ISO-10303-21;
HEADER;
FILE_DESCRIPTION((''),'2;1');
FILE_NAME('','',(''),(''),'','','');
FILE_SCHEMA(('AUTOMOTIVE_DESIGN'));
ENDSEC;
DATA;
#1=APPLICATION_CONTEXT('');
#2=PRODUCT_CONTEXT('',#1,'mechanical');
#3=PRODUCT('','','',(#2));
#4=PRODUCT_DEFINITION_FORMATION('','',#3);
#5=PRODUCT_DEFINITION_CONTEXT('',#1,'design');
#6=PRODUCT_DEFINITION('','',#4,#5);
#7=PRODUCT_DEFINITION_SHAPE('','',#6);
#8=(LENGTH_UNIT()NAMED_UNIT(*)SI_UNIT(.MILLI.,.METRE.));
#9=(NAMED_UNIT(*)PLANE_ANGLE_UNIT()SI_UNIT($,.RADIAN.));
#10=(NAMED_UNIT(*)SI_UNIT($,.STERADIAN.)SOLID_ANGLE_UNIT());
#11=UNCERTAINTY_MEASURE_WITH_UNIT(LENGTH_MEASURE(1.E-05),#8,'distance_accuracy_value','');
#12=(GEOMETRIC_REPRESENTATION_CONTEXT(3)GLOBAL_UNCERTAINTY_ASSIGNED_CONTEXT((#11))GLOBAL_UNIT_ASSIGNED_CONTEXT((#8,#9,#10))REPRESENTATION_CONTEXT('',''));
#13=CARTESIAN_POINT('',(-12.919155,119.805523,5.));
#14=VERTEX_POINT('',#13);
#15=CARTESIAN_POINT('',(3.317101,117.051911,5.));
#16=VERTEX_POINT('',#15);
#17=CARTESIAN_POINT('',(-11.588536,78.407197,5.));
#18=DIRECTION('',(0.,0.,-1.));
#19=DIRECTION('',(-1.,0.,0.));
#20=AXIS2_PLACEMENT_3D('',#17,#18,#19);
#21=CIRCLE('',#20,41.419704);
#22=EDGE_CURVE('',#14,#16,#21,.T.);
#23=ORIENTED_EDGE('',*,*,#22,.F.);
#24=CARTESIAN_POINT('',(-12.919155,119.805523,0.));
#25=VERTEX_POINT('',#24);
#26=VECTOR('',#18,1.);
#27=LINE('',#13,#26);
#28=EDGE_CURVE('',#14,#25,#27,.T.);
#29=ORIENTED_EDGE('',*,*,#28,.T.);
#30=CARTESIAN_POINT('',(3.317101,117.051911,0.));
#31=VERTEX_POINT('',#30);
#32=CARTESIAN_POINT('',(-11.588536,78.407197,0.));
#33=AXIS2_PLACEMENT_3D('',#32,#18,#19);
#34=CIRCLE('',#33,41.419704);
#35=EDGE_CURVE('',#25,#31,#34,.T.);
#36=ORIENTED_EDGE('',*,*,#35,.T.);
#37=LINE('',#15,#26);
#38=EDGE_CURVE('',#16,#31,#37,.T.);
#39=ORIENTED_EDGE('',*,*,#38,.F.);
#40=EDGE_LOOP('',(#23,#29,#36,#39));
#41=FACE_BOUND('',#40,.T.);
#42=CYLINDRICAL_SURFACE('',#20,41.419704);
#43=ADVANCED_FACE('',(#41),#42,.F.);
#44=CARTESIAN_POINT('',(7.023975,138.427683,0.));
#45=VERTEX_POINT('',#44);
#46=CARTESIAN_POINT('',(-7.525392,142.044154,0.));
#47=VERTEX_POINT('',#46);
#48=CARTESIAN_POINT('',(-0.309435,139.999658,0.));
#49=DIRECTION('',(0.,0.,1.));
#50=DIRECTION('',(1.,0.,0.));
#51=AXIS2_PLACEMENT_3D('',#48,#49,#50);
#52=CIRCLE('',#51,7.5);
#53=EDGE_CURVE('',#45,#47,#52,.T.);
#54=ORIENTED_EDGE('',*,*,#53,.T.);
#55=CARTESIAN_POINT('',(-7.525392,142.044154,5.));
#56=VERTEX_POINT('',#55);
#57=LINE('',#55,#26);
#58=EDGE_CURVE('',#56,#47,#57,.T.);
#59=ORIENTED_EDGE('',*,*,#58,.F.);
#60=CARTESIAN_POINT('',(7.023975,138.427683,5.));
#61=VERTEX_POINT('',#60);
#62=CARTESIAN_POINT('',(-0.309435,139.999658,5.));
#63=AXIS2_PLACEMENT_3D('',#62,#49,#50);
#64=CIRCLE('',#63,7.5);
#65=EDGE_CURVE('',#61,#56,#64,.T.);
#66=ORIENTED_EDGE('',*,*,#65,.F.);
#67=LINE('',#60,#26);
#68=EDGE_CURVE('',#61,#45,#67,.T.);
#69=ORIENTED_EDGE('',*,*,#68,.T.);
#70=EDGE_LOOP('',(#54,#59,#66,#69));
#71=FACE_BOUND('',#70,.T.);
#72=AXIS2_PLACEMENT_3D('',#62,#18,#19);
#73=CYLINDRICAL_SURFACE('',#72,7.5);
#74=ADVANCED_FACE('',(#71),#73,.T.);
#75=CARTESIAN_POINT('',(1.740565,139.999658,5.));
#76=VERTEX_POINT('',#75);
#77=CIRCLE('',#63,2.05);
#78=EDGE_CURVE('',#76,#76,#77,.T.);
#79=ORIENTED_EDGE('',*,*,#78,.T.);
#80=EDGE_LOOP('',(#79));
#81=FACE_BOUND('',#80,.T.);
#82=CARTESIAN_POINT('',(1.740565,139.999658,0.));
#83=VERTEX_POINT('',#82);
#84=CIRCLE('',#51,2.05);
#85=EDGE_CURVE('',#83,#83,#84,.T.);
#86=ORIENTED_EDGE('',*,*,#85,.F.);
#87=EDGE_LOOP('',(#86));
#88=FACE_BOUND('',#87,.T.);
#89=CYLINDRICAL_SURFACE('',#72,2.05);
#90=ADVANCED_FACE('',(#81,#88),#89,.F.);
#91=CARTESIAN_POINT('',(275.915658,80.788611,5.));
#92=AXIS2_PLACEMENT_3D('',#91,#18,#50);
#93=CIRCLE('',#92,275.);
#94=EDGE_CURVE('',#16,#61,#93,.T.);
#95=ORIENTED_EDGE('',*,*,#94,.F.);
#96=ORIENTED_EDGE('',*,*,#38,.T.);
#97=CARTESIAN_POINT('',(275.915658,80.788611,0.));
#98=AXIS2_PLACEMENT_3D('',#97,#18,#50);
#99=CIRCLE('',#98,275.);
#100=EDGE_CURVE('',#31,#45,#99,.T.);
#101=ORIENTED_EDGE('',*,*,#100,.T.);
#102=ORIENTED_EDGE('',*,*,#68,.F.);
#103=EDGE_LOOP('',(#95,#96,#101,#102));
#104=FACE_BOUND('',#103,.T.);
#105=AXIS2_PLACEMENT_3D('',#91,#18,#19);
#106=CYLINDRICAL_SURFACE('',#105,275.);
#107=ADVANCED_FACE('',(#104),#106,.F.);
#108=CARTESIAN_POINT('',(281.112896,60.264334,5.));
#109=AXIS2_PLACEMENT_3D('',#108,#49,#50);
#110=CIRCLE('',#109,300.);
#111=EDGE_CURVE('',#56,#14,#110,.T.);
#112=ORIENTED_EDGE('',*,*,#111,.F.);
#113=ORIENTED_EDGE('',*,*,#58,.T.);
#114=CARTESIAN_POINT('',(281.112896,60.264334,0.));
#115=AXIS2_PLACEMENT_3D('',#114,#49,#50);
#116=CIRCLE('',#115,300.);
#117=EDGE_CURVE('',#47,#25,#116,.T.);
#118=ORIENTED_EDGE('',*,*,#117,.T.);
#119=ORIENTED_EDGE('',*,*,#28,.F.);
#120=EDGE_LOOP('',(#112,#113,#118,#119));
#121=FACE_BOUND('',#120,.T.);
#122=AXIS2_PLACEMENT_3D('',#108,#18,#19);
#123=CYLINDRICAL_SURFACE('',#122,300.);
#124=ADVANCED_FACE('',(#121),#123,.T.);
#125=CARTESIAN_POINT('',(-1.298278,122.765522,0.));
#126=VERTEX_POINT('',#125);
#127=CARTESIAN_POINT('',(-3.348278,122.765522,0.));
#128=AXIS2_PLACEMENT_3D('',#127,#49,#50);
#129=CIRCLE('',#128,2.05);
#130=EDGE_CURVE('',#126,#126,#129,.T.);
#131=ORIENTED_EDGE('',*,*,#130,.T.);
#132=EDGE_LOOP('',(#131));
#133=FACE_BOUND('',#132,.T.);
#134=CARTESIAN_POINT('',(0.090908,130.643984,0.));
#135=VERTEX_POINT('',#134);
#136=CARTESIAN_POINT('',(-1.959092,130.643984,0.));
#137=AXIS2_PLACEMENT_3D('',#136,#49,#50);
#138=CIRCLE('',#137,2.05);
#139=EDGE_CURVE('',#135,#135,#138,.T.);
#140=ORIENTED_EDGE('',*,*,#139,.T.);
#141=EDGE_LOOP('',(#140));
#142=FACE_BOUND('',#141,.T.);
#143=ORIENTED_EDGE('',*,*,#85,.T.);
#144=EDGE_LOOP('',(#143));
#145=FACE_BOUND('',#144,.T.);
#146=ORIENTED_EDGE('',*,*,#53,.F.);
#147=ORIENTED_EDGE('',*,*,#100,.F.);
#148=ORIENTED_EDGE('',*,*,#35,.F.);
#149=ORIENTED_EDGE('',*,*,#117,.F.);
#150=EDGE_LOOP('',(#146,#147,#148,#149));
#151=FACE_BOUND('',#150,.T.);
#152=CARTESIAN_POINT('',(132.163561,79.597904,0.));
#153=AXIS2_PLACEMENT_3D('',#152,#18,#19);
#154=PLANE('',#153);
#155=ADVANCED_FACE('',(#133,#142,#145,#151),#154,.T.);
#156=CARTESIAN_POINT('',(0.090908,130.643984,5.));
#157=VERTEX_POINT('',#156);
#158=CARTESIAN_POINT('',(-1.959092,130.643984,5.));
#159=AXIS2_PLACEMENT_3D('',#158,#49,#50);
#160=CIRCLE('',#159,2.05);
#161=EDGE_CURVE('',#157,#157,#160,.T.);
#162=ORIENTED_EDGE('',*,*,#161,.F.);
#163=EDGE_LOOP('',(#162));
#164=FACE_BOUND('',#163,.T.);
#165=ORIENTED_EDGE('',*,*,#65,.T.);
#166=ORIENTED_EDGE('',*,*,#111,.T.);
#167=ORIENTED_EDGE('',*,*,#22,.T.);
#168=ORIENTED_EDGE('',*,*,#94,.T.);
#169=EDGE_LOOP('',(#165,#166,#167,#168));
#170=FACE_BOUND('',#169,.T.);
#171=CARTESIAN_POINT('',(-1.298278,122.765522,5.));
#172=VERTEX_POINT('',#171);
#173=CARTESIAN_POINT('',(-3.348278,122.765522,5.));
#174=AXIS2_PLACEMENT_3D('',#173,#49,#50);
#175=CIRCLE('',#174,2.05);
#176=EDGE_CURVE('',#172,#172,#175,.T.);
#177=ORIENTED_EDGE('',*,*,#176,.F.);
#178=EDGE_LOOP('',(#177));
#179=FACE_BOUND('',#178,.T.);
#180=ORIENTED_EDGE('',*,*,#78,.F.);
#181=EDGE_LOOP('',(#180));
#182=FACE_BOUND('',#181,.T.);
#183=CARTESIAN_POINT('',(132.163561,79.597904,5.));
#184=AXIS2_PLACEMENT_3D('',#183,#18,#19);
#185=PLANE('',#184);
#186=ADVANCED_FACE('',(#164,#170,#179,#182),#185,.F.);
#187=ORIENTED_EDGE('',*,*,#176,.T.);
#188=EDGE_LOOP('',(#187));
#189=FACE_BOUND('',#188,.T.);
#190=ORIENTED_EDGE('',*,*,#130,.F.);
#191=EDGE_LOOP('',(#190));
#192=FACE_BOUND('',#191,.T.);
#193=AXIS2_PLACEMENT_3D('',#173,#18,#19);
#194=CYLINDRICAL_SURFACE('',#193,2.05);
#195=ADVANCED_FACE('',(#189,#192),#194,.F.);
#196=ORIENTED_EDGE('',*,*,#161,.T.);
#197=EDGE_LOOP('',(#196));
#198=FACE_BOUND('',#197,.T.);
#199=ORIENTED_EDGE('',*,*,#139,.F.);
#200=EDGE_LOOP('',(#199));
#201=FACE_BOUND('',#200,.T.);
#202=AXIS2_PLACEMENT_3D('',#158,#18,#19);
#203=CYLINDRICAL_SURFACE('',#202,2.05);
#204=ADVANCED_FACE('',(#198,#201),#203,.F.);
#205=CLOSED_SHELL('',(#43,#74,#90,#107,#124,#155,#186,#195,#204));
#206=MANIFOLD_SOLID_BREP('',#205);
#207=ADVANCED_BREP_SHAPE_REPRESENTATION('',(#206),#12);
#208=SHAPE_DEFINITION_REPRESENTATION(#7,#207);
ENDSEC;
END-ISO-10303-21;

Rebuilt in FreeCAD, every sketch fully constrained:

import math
import FreeCAD as App
import Part
import Sketcher

doc = App.newDocument("Part")
body = doc.addObject("PartDesign::Body", "Body")

sketch1 = body.newObject("Sketcher::SketchObject", "Sketch")
sketch1.AttachmentSupport = (doc.getObject("XY_Plane"), [""])
sketch1.MapMode = "FlatFace"
sketch1.addGeometry([
    Part.ArcOfCircle(Part.Circle(App.Vector(-0.309435, 139.999658, 0), App.Vector(0, 0, 1), 7.5), math.radians(-12.098715), math.radians(164.180995)),
    Part.ArcOfCircle(Part.Circle(App.Vector(281.112895, 60.264334, 0), App.Vector(0, 0, 1), 300), math.radians(164.180995), math.radians(168.55246)),
    Part.ArcOfCircle(Part.Circle(App.Vector(-11.588536, 78.407197, 0), App.Vector(0, 0, 1), 41.419704), math.radians(68.907894), math.radians(91.840959)),
    Part.ArcOfCircle(Part.Circle(App.Vector(275.915658, 80.788611, 0), App.Vector(0, 0, 1), 275), math.radians(167.901285), math.radians(172.422534)),
    Part.Circle(App.Vector(-3.348278, 122.765522, 0), App.Vector(0, 0, 1), 2.05),
    Part.Circle(App.Vector(-1.959092, 130.643984, 0), App.Vector(0, 0, 1), 2.05),
    Part.Circle(App.Vector(-0.309435, 139.999658, 0), App.Vector(0, 0, 1), 2.05),
], False)
sketch1.addConstraint([
    Sketcher.Constraint("Tangent", 0, 2, 1, 1),
    Sketcher.Constraint("Coincident", 1, 2, 2, 2),
    Sketcher.Constraint("Coincident", 2, 1, 3, 2),
    Sketcher.Constraint("Tangent", 3, 1, 0, 1),
    Sketcher.Constraint("Coincident", 6, 3, 0, 3),
    Sketcher.Constraint("Equal", 4, 5),
    Sketcher.Constraint("Equal", 5, 6),
    Sketcher.Constraint("Radius", 1, 300.0),
    Sketcher.Constraint("Radius", 3, 275.0),
    Sketcher.Constraint("Diameter", 4, 4.1),
    Sketcher.Constraint("Radius", 0, 7.5),
    Sketcher.Constraint("DistanceY", 1, 2, 4, 3, 2.959999),
    Sketcher.Constraint("Radius", 2, 41.419704),
    Sketcher.Constraint("DistanceX", -1, 1, 2, 1, 3.317101),
    Sketcher.Constraint("DistanceX", 2, 3, 0, 3, 11.279101),
    Sketcher.Constraint("DistanceX", 0, 2, 5, 3, 5.5663),
    Sketcher.Constraint("DistanceY", 5, 3, 3, 1, 7.783699),
    Sketcher.Constraint("DistanceY", -1, 1, 0, 3, 139.999658),
    Sketcher.Constraint("DistanceY", -1, 1, 3, 3, 80.788611),
    Sketcher.Constraint("DistanceX", 0, 2, -1, 1, 7.525392),
    Sketcher.Constraint("DistanceY", -1, 1, 2, 1, 117.051911),
    Sketcher.Constraint("DistanceX", 2, 3, 4, 3, 8.240258),
])
pad1 = body.newObject("PartDesign::Pad", "Pad")
pad1.Profile = sketch1
pad1.Length = 5

doc.recompute()
